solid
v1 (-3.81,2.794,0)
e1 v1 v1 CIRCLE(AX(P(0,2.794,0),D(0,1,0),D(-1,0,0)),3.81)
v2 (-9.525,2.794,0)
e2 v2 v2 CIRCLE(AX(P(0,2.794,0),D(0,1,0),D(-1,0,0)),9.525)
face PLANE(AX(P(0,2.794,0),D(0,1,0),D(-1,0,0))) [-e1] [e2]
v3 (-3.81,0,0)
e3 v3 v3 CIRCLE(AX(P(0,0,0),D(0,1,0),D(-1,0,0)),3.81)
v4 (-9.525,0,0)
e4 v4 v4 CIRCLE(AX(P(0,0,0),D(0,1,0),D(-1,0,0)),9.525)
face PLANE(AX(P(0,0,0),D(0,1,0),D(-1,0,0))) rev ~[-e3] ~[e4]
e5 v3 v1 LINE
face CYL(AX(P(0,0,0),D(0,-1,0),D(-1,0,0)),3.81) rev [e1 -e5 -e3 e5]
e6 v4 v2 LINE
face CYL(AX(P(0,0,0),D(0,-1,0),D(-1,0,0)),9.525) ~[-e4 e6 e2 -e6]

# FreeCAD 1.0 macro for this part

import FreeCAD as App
import Part
import Sketcher
Q = App.Units.Quantity

doc = App.newDocument("Part")
body = doc.addObject("PartDesign::Body", "Body")

sketch1 = body.newObject("Sketcher::SketchObject", "Sketch")
sketch1.AttachmentSupport = (doc.getObject("XZ_Plane"), [""])
sketch1.MapMode = "FlatFace"
sketch1.addGeometry([
    Part.Circle(App.Vector(0, 0, 0), App.Vector(0, 0, 1), 9.5),
    Part.Circle(App.Vector(0, 0, 0), App.Vector(0, 0, 1), 3.8),
], False)
sketch1.addConstraint([
    Sketcher.Constraint("Coincident", 0, 3, -1, 1),
    Sketcher.Constraint("Coincident", 1, 3, -1, 1),
    Sketcher.Constraint("Diameter", 1, Q("0.3 in")),
    Sketcher.Constraint("Diameter", 0, Q("0.75 in")),
])
pad1 = body.newObject("PartDesign::Pad", "Pad")
pad1.Profile = sketch1
pad1.Length = Q("0.11 in")
pad1.Reversed = True

doc.recompute()
